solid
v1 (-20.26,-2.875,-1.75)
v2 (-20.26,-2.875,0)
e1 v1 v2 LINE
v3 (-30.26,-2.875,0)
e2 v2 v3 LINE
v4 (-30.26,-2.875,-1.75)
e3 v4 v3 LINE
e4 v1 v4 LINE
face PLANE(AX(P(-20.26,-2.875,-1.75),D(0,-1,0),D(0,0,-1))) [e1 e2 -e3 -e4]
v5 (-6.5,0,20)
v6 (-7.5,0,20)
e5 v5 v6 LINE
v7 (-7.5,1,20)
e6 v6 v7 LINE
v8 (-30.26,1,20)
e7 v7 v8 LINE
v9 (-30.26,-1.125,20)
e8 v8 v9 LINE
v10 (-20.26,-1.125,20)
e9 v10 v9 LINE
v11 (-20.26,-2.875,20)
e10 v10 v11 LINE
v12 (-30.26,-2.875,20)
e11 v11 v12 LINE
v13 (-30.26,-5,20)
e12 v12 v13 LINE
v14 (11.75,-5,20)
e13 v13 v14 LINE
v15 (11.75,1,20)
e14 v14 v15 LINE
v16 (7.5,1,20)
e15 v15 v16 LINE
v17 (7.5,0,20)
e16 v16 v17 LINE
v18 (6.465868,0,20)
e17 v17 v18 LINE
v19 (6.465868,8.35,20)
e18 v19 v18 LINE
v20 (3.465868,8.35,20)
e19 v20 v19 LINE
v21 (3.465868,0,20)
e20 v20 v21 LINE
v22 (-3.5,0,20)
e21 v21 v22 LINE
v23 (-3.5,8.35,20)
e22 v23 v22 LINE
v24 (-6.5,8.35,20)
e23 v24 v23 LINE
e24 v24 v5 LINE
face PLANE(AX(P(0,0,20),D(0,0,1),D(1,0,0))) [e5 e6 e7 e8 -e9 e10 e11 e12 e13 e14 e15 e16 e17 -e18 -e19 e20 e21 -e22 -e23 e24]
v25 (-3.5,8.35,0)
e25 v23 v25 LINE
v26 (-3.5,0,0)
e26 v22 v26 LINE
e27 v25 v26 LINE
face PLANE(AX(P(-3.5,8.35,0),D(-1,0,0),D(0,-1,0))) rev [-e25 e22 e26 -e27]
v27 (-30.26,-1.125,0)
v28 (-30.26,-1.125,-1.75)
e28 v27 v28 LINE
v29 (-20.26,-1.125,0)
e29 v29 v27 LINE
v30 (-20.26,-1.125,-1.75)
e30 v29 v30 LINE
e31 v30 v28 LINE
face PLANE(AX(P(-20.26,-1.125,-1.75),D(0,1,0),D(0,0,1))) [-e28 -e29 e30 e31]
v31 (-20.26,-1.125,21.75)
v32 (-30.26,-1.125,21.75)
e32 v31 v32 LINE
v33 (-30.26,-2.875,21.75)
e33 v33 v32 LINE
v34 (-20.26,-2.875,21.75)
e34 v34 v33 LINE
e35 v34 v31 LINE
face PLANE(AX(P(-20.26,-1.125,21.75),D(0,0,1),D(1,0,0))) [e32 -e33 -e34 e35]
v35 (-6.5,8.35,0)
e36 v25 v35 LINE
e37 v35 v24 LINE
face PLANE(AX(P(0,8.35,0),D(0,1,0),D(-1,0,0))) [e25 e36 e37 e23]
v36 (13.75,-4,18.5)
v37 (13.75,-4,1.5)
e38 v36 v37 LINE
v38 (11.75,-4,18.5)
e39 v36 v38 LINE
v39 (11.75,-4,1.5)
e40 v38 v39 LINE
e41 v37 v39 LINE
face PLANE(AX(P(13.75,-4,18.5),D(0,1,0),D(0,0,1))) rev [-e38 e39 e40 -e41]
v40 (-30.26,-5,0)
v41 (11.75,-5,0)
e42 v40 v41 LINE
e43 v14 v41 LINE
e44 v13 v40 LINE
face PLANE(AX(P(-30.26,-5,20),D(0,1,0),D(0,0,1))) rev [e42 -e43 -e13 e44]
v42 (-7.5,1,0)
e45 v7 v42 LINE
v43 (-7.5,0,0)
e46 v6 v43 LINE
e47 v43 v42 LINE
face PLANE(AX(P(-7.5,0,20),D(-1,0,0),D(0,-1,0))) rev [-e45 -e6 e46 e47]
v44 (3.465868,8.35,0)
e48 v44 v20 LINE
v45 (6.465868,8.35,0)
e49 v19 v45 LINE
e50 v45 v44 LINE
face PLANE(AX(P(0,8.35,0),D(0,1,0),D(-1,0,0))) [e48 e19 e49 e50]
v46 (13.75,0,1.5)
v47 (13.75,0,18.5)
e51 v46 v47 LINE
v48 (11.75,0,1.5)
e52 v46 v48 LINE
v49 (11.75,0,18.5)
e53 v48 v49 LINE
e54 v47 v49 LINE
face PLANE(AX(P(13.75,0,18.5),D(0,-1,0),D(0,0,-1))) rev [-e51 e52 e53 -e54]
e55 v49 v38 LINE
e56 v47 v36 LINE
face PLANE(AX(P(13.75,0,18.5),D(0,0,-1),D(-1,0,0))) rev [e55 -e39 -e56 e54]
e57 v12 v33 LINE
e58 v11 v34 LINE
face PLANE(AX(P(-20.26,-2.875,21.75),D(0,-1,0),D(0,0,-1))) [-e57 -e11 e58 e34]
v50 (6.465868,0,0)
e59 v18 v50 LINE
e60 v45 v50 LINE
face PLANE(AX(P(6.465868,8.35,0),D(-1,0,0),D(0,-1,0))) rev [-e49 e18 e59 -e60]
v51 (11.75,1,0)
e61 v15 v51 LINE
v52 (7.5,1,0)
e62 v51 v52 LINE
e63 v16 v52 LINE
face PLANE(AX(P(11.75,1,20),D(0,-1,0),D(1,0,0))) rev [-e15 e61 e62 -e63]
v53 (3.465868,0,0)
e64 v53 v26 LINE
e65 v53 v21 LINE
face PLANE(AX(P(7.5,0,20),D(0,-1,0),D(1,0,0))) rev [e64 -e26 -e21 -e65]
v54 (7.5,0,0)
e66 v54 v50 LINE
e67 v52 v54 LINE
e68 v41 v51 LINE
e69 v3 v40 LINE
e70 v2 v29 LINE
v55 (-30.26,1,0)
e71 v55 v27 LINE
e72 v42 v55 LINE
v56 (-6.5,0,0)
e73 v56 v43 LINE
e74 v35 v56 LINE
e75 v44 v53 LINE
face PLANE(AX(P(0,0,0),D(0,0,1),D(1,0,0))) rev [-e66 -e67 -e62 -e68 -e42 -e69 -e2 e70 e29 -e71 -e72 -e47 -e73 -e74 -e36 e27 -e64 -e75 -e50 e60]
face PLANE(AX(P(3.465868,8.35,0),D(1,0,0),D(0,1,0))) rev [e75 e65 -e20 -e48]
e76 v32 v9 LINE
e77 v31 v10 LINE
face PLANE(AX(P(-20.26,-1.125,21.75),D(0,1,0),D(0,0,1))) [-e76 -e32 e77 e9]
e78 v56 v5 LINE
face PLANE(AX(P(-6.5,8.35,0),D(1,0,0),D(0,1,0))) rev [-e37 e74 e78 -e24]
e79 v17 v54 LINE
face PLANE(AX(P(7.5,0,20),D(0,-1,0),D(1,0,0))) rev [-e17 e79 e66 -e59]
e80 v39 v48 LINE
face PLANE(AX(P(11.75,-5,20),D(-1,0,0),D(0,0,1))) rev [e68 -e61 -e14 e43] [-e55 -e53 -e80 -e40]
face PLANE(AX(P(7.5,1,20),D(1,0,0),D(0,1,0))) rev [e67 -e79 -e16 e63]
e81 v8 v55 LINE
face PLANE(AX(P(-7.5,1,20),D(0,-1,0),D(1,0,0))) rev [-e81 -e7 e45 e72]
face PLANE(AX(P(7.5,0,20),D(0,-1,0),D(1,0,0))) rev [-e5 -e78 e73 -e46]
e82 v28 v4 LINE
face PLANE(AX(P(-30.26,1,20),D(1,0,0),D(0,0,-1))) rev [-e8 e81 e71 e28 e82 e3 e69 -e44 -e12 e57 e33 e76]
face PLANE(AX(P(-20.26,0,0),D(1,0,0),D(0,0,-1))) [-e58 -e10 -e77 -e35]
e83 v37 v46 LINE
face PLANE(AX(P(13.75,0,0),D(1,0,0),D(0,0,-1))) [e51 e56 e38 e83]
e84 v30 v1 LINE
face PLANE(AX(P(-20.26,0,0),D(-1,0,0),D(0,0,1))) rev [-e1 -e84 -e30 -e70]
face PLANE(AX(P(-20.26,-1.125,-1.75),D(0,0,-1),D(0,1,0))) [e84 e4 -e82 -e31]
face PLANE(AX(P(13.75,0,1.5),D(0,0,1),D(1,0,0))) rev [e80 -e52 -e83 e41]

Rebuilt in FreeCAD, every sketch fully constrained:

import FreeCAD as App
import Part
import Sketcher
from FreeCAD import Vector

doc = App.newDocument("Part")
body = doc.addObject("PartDesign::Body", "Body")

# Sketch on XY plane
sketch1 = body.newObject("Sketcher::SketchObject", "Sketch")
sketch1.AttachmentSupport = (doc.getObject("XY_Plane"), [""])
sketch1.MapMode = "FlatFace"
sketch1.addGeometry(Part.LineSegment(Vector(-7.5, 1, 0), Vector(-30.3, 1, 0)), False)
sketch1.addGeometry(Part.LineSegment(Vector(-30.3, 1, 0), Vector(-30.3, -5, 0)), False)
sketch1.addGeometry(Part.LineSegment(Vector(-30.3, -5, 0), Vector(11.8, -5, 0)), False)
sketch1.addGeometry(Part.LineSegment(Vector(11.8, -5, 0), Vector(11.8, 1, 0)), False)
sketch1.addGeometry(Part.LineSegment(Vector(11.8, 1, 0), Vector(7.5, 1, 0)), False)
sketch1.addGeometry(Part.LineSegment(Vector(7.5, 1, 0), Vector(7.5, 0, 0)), False)
sketch1.addGeometry(Part.LineSegment(Vector(7.5, 0, 0), Vector(-7.5, 0, 0)), False)
sketch1.addGeometry(Part.LineSegment(Vector(-7.5, 0, 0), Vector(-7.5, 1, 0)), False)
sketch1.addConstraint(Sketcher.Constraint("Coincident", 0, 2, 1, 1))
sketch1.addConstraint(Sketcher.Constraint("Coincident", 1, 2, 2, 1))
sketch1.addConstraint(Sketcher.Constraint("Coincident", 2, 2, 3, 1))
sketch1.addConstraint(Sketcher.Constraint("Coincident", 3, 2, 4, 1))
sketch1.addConstraint(Sketcher.Constraint("Coincident", 4, 2, 5, 1))
sketch1.addConstraint(Sketcher.Constraint("Coincident", 5, 2, 6, 1))
sketch1.addConstraint(Sketcher.Constraint("Coincident", 6, 2, 7, 1))
sketch1.addConstraint(Sketcher.Constraint("Coincident", 7, 2, 0, 1))
sketch1.addConstraint(Sketcher.Constraint("Horizontal", 0))
sketch1.addConstraint(Sketcher.Constraint("Vertical", 1))
sketch1.addConstraint(Sketcher.Constraint("Horizontal", 2))
sketch1.addConstraint(Sketcher.Constraint("Vertical", 3))
sketch1.addConstraint(Sketcher.Constraint("Horizontal", 4))
sketch1.addConstraint(Sketcher.Constraint("Vertical", 5))
sketch1.addConstraint(Sketcher.Constraint("Horizontal", 6))
sketch1.addConstraint(Sketcher.Constraint("Vertical", 7))
sketch1.addConstraint(Sketcher.Constraint("Symmetric", 5, 2, 6, 2, -1, 1))
sketch1.addConstraint(Sketcher.Constraint("Horizontal", 0, 2, 3, 2))
sketch1.addConstraint(Sketcher.Constraint("DistanceX", 6, 2, 6, 1, 15.0))
sketch1.addConstraint(Sketcher.Constraint("DistanceY", 1, 2, 1, 1, 6.0))
sketch1.addConstraint(Sketcher.Constraint("DistanceY", 5, 2, 5, 1, 1.0))
sketch1.addConstraint(Sketcher.Constraint("DistanceX", 0, 2, 0, 1, 22.76))
sketch1.addConstraint(Sketcher.Constraint("DistanceX", 2, 1, 2, 2, 42.01))
pad1 = body.newObject("PartDesign::Pad", "Pad")
pad1.Profile = sketch1
pad1.Length = 20

# Sketch on YZ plane
sketch2 = body.newObject("Sketcher::SketchObject", "Sketch001")
sketch2.AttachmentSupport = (doc.getObject("YZ_Plane"), [""])
sketch2.MapMode = "FlatFace"
sketch2.AttachmentOffset = App.Placement(Vector(0, 0, 11.75), App.Rotation())
sketch2.addGeometry(Part.LineSegment(Vector(0, 18.5, 0), Vector(-4, 18.5, 0)), False)
sketch2.addGeometry(Part.LineSegment(Vector(-4, 18.5, 0), Vector(-4, 1.5, 0)), False)
sketch2.addGeometry(Part.LineSegment(Vector(-4, 1.5, 0), Vector(0, 1.5, 0)), False)
sketch2.addGeometry(Part.LineSegment(Vector(0, 1.5, 0), Vector(0, 18.5, 0)), False)
sketch2.addConstraint(Sketcher.Constraint("Coincident", 0, 2, 1, 1))
sketch2.addConstraint(Sketcher.Constraint("Coincident", 1, 2, 2, 1))
sketch2.addConstraint(Sketcher.Constraint("Coincident", 2, 2, 3, 1))
sketch2.addConstraint(Sketcher.Constraint("Coincident", 3, 2, 0, 1))
sketch2.addConstraint(Sketcher.Constraint("Horizontal", 0))
sketch2.addConstraint(Sketcher.Constraint("Vertical", 1))
sketch2.addConstraint(Sketcher.Constraint("Horizontal", 2))
sketch2.addConstraint(Sketcher.Constraint("Vertical", 3))
sketch2.addConstraint(Sketcher.Constraint("PointOnObject", 2, 2, -2))
sketch2.addConstraint(Sketcher.Constraint("DistanceX", 0, 2, 0, 1, 4.0))
sketch2.addConstraint(Sketcher.Constraint("DistanceY", 1, 2, 1, 1, 17.0))
sketch2.addConstraint(Sketcher.Constraint("DistanceY", -1, 1, 0, 2, 18.5))
pad2 = body.newObject("PartDesign::Pad", "Pad001")
pad2.Profile = sketch2
pad2.Length = 2

# Sketch on XZ plane
sketch3 = body.newObject("Sketcher::SketchObject", "Sketch002")
sketch3.AttachmentSupport = (doc.getObject("XZ_Plane"), [""])
sketch3.MapMode = "FlatFace"
sketch3.addGeometry(Part.LineSegment(Vector(-6.5, 0, 0), Vector(-6.5, 20, 0)), False)
sketch3.addGeometry(Part.LineSegment(Vector(-6.5, 20, 0), Vector(-3.5, 20, 0)), False)
sketch3.addGeometry(Part.LineSegment(Vector(-3.5, 20, 0), Vector(-3.5, 0, 0)), False)
sketch3.addGeometry(Part.LineSegment(Vector(-3.5, 0, 0), Vector(-6.5, 0, 0)), False)
sketch3.addGeometry(Part.LineSegment(Vector(3.5, 0, 0), Vector(3.5, 20, 0)), False)
sketch3.addGeometry(Part.LineSegment(Vector(3.5, 20, 0), Vector(6.5, 20, 0)), False)
sketch3.addGeometry(Part.LineSegment(Vector(6.5, 20, 0), Vector(6.5, 0, 0)), False)
sketch3.addGeometry(Part.LineSegment(Vector(6.5, 0, 0), Vector(3.5, 0, 0)), False)
sketch3.addConstraint(Sketcher.Constraint("Coincident", 0, 2, 1, 1))
sketch3.addConstraint(Sketcher.Constraint("Coincident", 1, 2, 2, 1))
sketch3.addConstraint(Sketcher.Constraint("Coincident", 2, 2, 3, 1))
sketch3.addConstraint(Sketcher.Constraint("Coincident", 3, 2, 0, 1))
sketch3.addConstraint(Sketcher.Constraint("Coincident", 4, 2, 5, 1))
sketch3.addConstraint(Sketcher.Constraint("Coincident", 5, 2, 6, 1))
sketch3.addConstraint(Sketcher.Constraint("Coincident", 6, 2, 7, 1))
sketch3.addConstraint(Sketcher.Constraint("Coincident", 7, 2, 4, 1))
sketch3.addConstraint(Sketcher.Constraint("Vertical", 0))
sketch3.addConstraint(Sketcher.Constraint("Horizontal", 1))
sketch3.addConstraint(Sketcher.Constraint("Vertical", 2))
sketch3.addConstraint(Sketcher.Constraint("Horizontal", 3))
sketch3.addConstraint(Sketcher.Constraint("Vertical", 4))
sketch3.addConstraint(Sketcher.Constraint("Horizontal", 5))
sketch3.addConstraint(Sketcher.Constraint("Vertical", 6))
sketch3.addConstraint(Sketcher.Constraint("Horizontal", 7))
sketch3.addConstraint(Sketcher.Constraint("PointOnObject", 2, 2, -1))
sketch3.addConstraint(Sketcher.Constraint("PointOnObject", 6, 2, -1))
sketch3.addConstraint(Sketcher.Constraint("Horizontal", 1, 2, 4, 2))
sketch3.addConstraint(Sketcher.Constraint("Equal", 3, 5))
sketch3.addConstraint(Sketcher.Constraint("DistanceX", 1, 1, 1, 2, 3.0))
sketch3.addConstraint(Sketcher.Constraint("DistanceY", 0, 1, 0, 2, 20.0))
sketch3.addConstraint(Sketcher.Constraint("DistanceX", 0, 2, -1, 1, 6.5))
sketch3.addConstraint(Sketcher.Constraint("DistanceX", -1, 1, 4, 2, 3.465868))
pad3 = body.newObject("PartDesign::Pad", "Pad002")
pad3.Profile = sketch3
pad3.Length = 8.35
pad3.Reversed = True

# Sketch on YZ plane
sketch4 = body.newObject("Sketcher::SketchObject", "Sketch003")
sketch4.AttachmentSupport = (doc.getObject("YZ_Plane"), [""])
sketch4.MapMode = "FlatFace"
sketch4.AttachmentOffset = App.Placement(Vector(0, 0, -30.26), App.Rotation())
sketch4.addGeometry(Part.LineSegment(Vector(-1.1, -1.8, 0), Vector(-2.9, -1.8, 0)), False)
sketch4.addGeometry(Part.LineSegment(Vector(-2.9, -1.8, 0), Vector(-2.9, 0, 0)), False)
sketch4.addGeometry(Part.LineSegment(Vector(-2.9, 0, 0), Vector(-1.1, 0, 0)), False)
sketch4.addGeometry(Part.LineSegment(Vector(-1.1, 0, 0), Vector(-1.1, -1.8, 0)), False)
sketch4.addGeometry(Part.LineSegment(Vector(-1.1, 20, 0), Vector(-2.9, 20, 0)), False)
sketch4.addGeometry(Part.LineSegment(Vector(-2.9, 20, 0), Vector(-2.9, 21.8, 0)), False)
sketch4.addGeometry(Part.LineSegment(Vector(-2.9, 21.8, 0), Vector(-1.1, 21.8, 0)), False)
sketch4.addGeometry(Part.LineSegment(Vector(-1.1, 21.8, 0), Vector(-1.1, 20, 0)), False)
sketch4.addConstraint(Sketcher.Constraint("Coincident", 0, 2, 1, 1))
sketch4.addConstraint(Sketcher.Constraint("Coincident", 1, 2, 2, 1))
sketch4.addConstraint(Sketcher.Constraint("Coincident", 2, 2, 3, 1))
sketch4.addConstraint(Sketcher.Constraint("Coincident", 3, 2, 0, 1))
sketch4.addConstraint(Sketcher.Constraint("Coincident", 4, 2, 5, 1))
sketch4.addConstraint(Sketcher.Constraint("Coincident", 5, 2, 6, 1))
sketch4.addConstraint(Sketcher.Constraint("Coincident", 6, 2, 7, 1))
sketch4.addConstraint(Sketcher.Constraint("Coincident", 7, 2, 4, 1))
sketch4.addConstraint(Sketcher.Constraint("Horizontal", 0))
sketch4.addConstraint(Sketcher.Constraint("Vertical", 1))
sketch4.addConstraint(Sketcher.Constraint("Horizontal", 2))
sketch4.addConstraint(Sketcher.Constraint("Vertical", 3))
sketch4.addConstraint(Sketcher.Constraint("Horizontal", 4))
sketch4.addConstraint(Sketcher.Constraint("Vertical", 5))
sketch4.addConstraint(Sketcher.Constraint("Horizontal", 6))
sketch4.addConstraint(Sketcher.Constraint("Vertical", 7))
sketch4.addConstraint(Sketcher.Constraint("PointOnObject", 1, 2, -1))
sketch4.addConstraint(Sketcher.Constraint("Vertical", 1, 2, 4, 2))
sketch4.addConstraint(Sketcher.Constraint("Vertical", 3, 2, 6, 2))
sketch4.addConstraint(Sketcher.Constraint("Equal", 6, 1))
sketch4.addConstraint(Sketcher.Constraint("Equal", 3, 5))
sketch4.addConstraint(Sketcher.Constraint("DistanceY", -1, 1, 4, 2, 20.0))
sketch4.addConstraint(Sketcher.Constraint("DistanceX", 0, 2, 0, 1, 1.75))
sketch4.addConstraint(Sketcher.Constraint("DistanceX", 0, 2, -1, 1, 2.875))
pad4 = body.newObject("PartDesign::Pad", "Pad003")
pad4.Profile = sketch4
pad4.Length = 10

doc.recompute()
